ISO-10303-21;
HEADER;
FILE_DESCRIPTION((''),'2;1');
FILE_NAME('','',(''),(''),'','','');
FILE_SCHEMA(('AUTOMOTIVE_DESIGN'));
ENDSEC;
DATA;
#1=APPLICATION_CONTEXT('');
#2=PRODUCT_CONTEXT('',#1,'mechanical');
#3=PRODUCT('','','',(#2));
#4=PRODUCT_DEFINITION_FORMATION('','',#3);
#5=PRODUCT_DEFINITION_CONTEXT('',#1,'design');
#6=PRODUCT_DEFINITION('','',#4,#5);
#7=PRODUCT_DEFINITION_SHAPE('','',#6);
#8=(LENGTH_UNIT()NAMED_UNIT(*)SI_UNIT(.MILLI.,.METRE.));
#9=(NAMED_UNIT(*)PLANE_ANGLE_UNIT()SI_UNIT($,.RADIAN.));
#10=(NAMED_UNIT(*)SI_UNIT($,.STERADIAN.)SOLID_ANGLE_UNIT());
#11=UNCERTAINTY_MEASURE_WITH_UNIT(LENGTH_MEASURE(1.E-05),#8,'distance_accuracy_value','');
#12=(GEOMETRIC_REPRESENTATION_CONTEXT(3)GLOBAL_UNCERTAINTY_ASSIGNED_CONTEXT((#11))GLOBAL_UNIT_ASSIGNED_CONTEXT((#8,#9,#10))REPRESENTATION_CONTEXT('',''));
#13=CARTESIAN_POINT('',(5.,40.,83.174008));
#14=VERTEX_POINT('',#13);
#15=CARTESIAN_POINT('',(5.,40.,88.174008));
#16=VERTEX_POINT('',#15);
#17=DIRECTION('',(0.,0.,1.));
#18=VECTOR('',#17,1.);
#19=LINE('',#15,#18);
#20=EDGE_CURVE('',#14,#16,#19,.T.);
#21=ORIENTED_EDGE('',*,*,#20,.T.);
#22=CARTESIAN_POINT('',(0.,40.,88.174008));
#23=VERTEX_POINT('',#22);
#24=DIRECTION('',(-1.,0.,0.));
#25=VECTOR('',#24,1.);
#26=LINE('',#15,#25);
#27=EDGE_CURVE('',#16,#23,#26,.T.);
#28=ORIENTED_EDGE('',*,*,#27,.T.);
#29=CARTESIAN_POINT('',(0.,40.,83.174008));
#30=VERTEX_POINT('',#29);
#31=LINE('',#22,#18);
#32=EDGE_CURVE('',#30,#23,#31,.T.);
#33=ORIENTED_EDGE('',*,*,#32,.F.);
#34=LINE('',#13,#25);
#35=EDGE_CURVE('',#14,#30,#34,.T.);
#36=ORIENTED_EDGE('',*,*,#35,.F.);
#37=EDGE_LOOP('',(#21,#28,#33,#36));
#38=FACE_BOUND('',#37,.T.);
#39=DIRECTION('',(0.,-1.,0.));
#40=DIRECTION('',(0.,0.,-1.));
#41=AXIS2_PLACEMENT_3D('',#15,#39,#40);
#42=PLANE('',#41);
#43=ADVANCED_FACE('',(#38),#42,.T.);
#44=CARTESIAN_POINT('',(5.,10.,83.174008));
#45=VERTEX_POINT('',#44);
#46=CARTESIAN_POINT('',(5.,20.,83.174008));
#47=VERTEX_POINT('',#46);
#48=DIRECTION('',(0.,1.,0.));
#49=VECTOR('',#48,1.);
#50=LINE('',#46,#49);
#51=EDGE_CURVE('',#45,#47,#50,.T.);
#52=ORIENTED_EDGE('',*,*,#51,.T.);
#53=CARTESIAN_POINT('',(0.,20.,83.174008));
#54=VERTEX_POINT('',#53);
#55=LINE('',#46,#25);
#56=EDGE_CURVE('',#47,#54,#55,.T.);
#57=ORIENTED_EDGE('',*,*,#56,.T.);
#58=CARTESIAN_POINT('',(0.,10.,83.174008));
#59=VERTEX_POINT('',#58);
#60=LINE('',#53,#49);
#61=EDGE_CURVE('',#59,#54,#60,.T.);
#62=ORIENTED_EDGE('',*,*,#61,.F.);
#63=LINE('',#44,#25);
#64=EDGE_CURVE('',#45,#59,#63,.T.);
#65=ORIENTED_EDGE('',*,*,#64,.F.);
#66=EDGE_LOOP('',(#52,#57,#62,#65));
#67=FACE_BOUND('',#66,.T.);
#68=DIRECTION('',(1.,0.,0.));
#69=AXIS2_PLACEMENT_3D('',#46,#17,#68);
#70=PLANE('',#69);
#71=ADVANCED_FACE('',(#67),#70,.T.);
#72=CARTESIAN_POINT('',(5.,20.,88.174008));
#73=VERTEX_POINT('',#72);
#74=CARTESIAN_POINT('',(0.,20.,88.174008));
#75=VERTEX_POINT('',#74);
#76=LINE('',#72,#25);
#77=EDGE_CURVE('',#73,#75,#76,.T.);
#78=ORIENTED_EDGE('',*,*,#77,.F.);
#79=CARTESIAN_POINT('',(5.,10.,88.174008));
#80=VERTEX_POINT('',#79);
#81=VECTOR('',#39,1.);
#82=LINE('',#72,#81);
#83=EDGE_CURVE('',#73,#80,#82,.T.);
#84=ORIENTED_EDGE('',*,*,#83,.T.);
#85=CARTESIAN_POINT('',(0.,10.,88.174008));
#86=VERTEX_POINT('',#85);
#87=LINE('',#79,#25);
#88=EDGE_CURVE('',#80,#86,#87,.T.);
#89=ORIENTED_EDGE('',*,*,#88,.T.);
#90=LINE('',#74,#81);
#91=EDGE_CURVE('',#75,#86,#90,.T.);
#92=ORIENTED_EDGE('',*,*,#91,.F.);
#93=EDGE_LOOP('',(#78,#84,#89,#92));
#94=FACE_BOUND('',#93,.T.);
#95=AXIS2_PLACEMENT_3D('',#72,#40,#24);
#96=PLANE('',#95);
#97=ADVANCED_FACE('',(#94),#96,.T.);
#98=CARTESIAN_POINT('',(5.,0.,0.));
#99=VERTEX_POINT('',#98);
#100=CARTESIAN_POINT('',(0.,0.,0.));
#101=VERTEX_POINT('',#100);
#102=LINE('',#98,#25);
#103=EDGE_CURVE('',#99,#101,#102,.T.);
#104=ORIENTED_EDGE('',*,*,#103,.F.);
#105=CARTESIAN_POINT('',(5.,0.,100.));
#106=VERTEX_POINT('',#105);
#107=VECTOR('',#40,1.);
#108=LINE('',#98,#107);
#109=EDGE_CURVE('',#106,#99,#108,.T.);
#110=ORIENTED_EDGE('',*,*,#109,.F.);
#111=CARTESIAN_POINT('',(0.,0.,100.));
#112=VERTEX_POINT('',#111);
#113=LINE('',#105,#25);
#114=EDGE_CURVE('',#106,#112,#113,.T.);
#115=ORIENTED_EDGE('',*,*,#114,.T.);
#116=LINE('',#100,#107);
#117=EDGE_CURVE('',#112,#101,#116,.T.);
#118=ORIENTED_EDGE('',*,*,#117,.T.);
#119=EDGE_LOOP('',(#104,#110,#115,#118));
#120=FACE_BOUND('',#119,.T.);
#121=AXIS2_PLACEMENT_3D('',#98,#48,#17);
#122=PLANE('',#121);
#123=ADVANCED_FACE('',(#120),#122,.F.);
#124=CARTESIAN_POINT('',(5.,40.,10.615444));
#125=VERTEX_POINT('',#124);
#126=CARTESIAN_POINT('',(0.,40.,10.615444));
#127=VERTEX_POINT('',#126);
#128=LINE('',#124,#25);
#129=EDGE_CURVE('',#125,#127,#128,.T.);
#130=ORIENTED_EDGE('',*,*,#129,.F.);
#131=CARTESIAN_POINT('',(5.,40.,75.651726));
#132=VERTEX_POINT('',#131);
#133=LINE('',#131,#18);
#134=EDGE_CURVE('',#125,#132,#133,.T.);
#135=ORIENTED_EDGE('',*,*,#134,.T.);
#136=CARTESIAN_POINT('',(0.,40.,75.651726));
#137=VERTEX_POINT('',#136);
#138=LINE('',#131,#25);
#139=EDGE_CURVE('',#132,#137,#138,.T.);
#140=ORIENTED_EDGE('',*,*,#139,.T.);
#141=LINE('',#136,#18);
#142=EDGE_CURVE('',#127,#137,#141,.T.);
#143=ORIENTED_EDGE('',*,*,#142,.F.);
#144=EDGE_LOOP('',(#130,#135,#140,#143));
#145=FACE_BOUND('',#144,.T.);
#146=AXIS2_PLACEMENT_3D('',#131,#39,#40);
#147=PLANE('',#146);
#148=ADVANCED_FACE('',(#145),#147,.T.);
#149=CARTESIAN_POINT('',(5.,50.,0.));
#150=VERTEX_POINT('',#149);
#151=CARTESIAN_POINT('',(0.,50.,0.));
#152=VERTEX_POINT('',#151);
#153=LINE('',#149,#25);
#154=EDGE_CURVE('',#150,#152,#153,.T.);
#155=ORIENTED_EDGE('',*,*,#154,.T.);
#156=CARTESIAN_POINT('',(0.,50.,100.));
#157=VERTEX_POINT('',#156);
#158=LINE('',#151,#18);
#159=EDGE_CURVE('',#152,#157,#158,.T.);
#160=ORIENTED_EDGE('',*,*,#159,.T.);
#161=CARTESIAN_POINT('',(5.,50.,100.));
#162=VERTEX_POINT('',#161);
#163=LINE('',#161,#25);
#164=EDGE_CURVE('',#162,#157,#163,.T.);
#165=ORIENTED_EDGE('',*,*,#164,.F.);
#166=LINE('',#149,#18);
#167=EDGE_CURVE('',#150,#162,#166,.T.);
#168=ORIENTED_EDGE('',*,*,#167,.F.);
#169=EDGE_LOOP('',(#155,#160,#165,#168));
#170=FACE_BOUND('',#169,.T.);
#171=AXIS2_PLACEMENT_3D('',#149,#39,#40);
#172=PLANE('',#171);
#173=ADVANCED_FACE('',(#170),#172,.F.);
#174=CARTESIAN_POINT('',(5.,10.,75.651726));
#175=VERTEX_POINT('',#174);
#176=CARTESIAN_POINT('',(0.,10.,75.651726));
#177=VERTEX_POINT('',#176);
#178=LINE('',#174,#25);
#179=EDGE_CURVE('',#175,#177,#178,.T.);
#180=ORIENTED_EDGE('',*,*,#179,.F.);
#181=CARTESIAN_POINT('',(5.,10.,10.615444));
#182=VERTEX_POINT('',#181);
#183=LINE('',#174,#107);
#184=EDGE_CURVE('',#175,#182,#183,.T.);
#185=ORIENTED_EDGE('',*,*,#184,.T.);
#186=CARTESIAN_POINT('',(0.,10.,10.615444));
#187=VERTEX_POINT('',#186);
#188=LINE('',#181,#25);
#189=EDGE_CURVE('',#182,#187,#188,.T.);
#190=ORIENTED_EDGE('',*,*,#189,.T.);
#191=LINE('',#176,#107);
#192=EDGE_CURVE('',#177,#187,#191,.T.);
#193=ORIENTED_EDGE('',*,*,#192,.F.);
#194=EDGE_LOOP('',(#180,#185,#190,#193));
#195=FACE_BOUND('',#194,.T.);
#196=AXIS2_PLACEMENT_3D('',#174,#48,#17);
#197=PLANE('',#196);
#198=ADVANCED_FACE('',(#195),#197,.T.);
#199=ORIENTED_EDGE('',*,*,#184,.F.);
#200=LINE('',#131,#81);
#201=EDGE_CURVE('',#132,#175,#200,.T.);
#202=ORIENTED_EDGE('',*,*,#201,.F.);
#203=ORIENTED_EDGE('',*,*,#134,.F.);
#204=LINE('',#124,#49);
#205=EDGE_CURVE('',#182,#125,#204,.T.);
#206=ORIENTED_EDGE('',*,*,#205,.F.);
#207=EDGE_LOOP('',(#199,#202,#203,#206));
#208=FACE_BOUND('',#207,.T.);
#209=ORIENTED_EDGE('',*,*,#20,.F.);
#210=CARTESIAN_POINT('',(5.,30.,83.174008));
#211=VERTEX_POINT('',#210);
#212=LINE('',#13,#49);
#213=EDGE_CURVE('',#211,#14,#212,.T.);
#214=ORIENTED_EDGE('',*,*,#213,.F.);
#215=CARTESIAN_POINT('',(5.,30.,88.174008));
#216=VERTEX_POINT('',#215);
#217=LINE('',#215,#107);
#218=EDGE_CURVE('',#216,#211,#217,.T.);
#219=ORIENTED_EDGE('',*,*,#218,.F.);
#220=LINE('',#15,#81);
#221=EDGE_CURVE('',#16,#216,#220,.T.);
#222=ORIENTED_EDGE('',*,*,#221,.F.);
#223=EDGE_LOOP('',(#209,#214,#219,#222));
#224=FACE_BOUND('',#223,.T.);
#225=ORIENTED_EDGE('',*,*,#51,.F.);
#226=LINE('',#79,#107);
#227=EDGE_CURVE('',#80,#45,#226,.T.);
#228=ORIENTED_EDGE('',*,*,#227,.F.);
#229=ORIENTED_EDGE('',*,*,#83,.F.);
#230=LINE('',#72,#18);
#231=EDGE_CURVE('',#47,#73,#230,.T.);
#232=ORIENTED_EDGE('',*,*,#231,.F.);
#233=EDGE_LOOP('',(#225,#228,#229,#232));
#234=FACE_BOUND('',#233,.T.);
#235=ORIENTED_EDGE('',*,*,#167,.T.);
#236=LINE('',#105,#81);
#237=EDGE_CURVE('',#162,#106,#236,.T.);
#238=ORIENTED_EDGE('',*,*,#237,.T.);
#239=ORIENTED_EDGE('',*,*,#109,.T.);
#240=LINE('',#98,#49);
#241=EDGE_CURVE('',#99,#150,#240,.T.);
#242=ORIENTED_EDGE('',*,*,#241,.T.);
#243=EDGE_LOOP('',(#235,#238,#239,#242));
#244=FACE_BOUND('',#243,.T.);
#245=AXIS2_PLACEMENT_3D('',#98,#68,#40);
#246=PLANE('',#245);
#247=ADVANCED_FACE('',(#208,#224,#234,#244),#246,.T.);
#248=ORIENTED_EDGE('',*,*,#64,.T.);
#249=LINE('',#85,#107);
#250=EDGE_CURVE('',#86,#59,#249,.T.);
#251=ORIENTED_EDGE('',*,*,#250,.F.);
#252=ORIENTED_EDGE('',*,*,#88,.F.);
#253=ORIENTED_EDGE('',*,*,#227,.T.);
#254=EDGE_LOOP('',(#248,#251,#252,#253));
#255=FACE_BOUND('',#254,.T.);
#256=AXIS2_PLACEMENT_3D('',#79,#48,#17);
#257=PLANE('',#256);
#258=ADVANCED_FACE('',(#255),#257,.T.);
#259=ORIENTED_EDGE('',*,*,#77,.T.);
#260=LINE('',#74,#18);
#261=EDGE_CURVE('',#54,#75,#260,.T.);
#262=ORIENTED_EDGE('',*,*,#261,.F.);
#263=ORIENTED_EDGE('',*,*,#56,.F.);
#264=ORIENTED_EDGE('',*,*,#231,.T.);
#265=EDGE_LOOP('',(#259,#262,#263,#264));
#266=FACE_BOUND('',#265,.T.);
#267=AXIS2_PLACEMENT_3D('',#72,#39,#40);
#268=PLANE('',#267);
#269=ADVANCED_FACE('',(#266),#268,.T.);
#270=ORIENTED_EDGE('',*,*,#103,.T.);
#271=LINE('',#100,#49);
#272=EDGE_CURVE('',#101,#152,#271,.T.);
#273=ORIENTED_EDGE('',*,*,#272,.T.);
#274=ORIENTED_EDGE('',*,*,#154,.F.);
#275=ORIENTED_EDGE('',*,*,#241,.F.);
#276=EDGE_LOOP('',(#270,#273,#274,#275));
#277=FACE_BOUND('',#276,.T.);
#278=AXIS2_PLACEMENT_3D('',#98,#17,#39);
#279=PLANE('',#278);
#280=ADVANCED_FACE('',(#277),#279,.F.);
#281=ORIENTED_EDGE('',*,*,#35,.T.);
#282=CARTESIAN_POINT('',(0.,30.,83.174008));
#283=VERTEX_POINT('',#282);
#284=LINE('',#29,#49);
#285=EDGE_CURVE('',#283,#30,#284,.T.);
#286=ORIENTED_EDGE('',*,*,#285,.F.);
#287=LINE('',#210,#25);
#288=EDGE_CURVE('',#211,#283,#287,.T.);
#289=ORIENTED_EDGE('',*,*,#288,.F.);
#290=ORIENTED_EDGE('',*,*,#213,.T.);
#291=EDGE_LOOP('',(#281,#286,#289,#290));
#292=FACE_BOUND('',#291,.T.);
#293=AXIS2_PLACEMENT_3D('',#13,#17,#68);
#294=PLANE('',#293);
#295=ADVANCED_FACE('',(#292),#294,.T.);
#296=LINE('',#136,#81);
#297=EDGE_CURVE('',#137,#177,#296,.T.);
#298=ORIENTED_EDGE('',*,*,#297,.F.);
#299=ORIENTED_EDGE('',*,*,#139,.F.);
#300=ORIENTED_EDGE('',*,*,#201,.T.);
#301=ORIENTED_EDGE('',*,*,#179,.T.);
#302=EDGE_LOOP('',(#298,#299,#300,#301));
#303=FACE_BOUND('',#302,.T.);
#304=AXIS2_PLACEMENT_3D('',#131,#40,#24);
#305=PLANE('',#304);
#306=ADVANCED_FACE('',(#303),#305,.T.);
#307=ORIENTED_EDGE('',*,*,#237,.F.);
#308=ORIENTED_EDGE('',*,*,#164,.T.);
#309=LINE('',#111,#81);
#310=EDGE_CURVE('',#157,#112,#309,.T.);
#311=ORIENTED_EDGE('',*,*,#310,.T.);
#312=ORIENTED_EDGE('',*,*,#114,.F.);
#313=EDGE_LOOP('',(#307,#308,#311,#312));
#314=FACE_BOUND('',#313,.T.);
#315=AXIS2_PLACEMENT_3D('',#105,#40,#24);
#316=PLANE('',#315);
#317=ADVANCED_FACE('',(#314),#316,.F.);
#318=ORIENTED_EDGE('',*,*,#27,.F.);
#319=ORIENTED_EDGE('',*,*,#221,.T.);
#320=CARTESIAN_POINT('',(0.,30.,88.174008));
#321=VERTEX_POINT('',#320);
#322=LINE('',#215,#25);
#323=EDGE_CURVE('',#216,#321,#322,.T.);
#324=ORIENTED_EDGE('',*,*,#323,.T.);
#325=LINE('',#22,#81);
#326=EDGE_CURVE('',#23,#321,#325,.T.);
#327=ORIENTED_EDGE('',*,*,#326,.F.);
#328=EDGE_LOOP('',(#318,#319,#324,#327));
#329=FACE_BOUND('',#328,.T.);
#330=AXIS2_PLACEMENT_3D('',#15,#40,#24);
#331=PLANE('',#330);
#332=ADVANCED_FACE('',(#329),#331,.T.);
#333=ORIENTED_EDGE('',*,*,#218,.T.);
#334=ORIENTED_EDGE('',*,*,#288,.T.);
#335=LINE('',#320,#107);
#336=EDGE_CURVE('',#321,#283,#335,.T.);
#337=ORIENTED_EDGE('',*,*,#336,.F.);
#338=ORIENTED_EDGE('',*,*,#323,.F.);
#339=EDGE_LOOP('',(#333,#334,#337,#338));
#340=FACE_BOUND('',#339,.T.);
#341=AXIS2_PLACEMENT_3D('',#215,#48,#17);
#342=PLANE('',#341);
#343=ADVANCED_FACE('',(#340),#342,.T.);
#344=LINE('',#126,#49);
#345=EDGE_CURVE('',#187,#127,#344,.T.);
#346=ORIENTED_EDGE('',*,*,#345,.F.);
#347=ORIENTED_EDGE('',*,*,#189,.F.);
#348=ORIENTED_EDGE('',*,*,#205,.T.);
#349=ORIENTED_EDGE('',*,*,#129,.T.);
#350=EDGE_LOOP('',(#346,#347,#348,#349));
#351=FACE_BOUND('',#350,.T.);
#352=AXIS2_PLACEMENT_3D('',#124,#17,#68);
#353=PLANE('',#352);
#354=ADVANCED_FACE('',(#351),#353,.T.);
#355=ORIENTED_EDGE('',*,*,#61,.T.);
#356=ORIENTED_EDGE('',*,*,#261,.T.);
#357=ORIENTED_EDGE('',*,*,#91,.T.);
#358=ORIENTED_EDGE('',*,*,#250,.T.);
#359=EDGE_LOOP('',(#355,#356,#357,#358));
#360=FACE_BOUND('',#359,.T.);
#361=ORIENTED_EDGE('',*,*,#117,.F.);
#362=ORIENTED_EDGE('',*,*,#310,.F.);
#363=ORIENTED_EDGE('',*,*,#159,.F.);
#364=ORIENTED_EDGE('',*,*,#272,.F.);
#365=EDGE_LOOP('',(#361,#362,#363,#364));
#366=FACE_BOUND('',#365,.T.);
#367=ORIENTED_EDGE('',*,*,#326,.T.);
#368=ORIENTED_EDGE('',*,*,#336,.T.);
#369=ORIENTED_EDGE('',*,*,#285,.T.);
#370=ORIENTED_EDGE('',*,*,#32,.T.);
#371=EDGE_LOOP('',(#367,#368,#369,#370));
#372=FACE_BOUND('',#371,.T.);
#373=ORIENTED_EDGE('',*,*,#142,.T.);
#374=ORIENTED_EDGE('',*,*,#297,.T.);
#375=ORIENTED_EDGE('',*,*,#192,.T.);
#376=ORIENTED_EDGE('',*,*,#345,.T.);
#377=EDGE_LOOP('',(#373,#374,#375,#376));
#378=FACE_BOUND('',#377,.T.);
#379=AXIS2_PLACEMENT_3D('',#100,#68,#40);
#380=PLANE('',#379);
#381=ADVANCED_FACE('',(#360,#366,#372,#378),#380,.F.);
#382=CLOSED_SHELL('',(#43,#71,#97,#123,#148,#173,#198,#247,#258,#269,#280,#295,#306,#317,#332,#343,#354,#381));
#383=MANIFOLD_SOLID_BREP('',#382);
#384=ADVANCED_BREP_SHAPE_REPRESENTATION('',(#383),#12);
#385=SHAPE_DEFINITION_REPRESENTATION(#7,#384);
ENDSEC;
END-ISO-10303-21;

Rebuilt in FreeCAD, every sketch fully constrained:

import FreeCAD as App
import Part
import Sketcher

doc = App.newDocument("Part")
body = doc.addObject("PartDesign::Body", "Body")

sketch1 = body.newObject("Sketcher::SketchObject", "Sketch")
sketch1.AttachmentSupport = (doc.getObject("YZ_Plane"), [""])
sketch1.MapMode = "FlatFace"
sketch1.addGeometry(Part.LineSegment(App.Vector(50, 100, 0), App.Vector(0, 100, 0)), False)
sketch1.addGeometry(Part.LineSegment(App.Vector(0, 100, 0), App.Vector(0, 0, 0)), False)
sketch1.addGeometry(Part.LineSegment(App.Vector(0, 0, 0), App.Vector(50, 0, 0)), False)
sketch1.addGeometry(Part.LineSegment(App.Vector(50, 0, 0), App.Vector(50, 100, 0)), False)
sketch1.addGeometry(Part.LineSegment(App.Vector(10, 83, 0), App.Vector(10, 88, 0)), False)
sketch1.addGeometry(Part.LineSegment(App.Vector(10, 88, 0), App.Vector(20, 88, 0)), False)
sketch1.addGeometry(Part.LineSegment(App.Vector(20, 88, 0), App.Vector(20, 83, 0)), False)
sketch1.addGeometry(Part.LineSegment(App.Vector(20, 83, 0), App.Vector(10, 83, 0)), False)
sketch1.addGeometry(Part.LineSegment(App.Vector(30, 83, 0), App.Vector(30, 88, 0)), False)
sketch1.addGeometry(Part.LineSegment(App.Vector(30, 88, 0), App.Vector(40, 88, 0)), False)
sketch1.addGeometry(Part.LineSegment(App.Vector(40, 88, 0), App.Vector(40, 83, 0)), False)
sketch1.addGeometry(Part.LineSegment(App.Vector(40, 83, 0), App.Vector(30, 83, 0)), False)
sketch1.addGeometry(Part.LineSegment(App.Vector(10, 11, 0), App.Vector(10, 76, 0)), False)
sketch1.addGeometry(Part.LineSegment(App.Vector(10, 76, 0), App.Vector(40, 76, 0)), False)
sketch1.addGeometry(Part.LineSegment(App.Vector(40, 76, 0), App.Vector(40, 11, 0)), False)
sketch1.addGeometry(Part.LineSegment(App.Vector(40, 11, 0), App.Vector(10, 11, 0)), False)
sketch1.addConstraint(Sketcher.Constraint("Coincident", 0, 2, 1, 1))
sketch1.addConstraint(Sketcher.Constraint("Coincident", 1, 2, 2, 1))
sketch1.addConstraint(Sketcher.Constraint("Coincident", 2, 2, 3, 1))
sketch1.addConstraint(Sketcher.Constraint("Coincident", 3, 2, 0, 1))
sketch1.addConstraint(Sketcher.Constraint("Coincident", 4, 2, 5, 1))
sketch1.addConstraint(Sketcher.Constraint("Coincident", 5, 2, 6, 1))
sketch1.addConstraint(Sketcher.Constraint("Coincident", 6, 2, 7, 1))
sketch1.addConstraint(Sketcher.Constraint("Coincident", 7, 2, 4, 1))
sketch1.addConstraint(Sketcher.Constraint("Coincident", 8, 2, 9, 1))
sketch1.addConstraint(Sketcher.Constraint("Coincident", 9, 2, 10, 1))
sketch1.addConstraint(Sketcher.Constraint("Coincident", 10, 2, 11, 1))
sketch1.addConstraint(Sketcher.Constraint("Coincident", 11, 2, 8, 1))
sketch1.addConstraint(Sketcher.Constraint("Coincident", 12, 2, 13, 1))
sketch1.addConstraint(Sketcher.Constraint("Coincident", 13, 2, 14, 1))
sketch1.addConstraint(Sketcher.Constraint("Coincident", 14, 2, 15, 1))
sketch1.addConstraint(Sketcher.Constraint("Coincident", 15, 2, 12, 1))
sketch1.addConstraint(Sketcher.Constraint("Horizontal", 0))
sketch1.addConstraint(Sketcher.Constraint("Vertical", 1))
sketch1.addConstraint(Sketcher.Constraint("Horizontal", 2))
sketch1.addConstraint(Sketcher.Constraint("Vertical", 3))
sketch1.addConstraint(Sketcher.Constraint("Vertical", 4))
sketch1.addConstraint(Sketcher.Constraint("Horizontal", 5))
sketch1.addConstraint(Sketcher.Constraint("Vertical", 6))
sketch1.addConstraint(Sketcher.Constraint("Horizontal", 7))
sketch1.addConstraint(Sketcher.Constraint("Vertical", 8))
sketch1.addConstraint(Sketcher.Constraint("Horizontal", 9))
sketch1.addConstraint(Sketcher.Constraint("Vertical", 10))
sketch1.addConstraint(Sketcher.Constraint("Horizontal", 11))
sketch1.addConstraint(Sketcher.Constraint("Vertical", 12))
sketch1.addConstraint(Sketcher.Constraint("Horizontal", 13))
sketch1.addConstraint(Sketcher.Constraint("Vertical", 14))
sketch1.addConstraint(Sketcher.Constraint("Horizontal", 15))
sketch1.addConstraint(Sketcher.Constraint("Coincident", 1, 2, -1, 1))
sketch1.addConstraint(Sketcher.Constraint("Horizontal", 5, 2, 8, 2))
sketch1.addConstraint(Sketcher.Constraint("Horizontal", 7, 2, 10, 2))
sketch1.addConstraint(Sketcher.Constraint("Vertical", 7, 2, 12, 2))
sketch1.addConstraint(Sketcher.Constraint("Vertical", 10, 2, 13, 2))
sketch1.addConstraint(Sketcher.Constraint("Equal", 7, 9))
sketch1.addConstraint(Sketcher.Constraint("DistanceX", 0, 2, 0, 1, 50.0))
sketch1.addConstraint(Sketcher.Constraint("DistanceX", 5, 1, 5, 2, 10.0))
sketch1.addConstraint(Sketcher.Constraint("DistanceX", 13, 1, 13, 2, 30.0))
sketch1.addConstraint(Sketcher.Constraint("DistanceY", 1, 2, 1, 1, 100.0))
sketch1.addConstraint(Sketcher.Constraint("DistanceY", 4, 1, 4, 2, 5.0))
sketch1.addConstraint(Sketcher.Constraint("DistanceX", -1, 1, 4, 2, 10.0))
sketch1.addConstraint(Sketcher.Constraint("DistanceY", 12, 1, 12, 2, 65.036281))
sketch1.addConstraint(Sketcher.Constraint("DistanceY", -1, 1, 4, 2, 88.174008))
sketch1.addConstraint(Sketcher.Constraint("DistanceY", -1, 1, 12, 2, 75.651726))
pad1 = body.newObject("PartDesign::Pad", "Pad")
pad1.Profile = sketch1
pad1.Length = 5

doc.recompute()
